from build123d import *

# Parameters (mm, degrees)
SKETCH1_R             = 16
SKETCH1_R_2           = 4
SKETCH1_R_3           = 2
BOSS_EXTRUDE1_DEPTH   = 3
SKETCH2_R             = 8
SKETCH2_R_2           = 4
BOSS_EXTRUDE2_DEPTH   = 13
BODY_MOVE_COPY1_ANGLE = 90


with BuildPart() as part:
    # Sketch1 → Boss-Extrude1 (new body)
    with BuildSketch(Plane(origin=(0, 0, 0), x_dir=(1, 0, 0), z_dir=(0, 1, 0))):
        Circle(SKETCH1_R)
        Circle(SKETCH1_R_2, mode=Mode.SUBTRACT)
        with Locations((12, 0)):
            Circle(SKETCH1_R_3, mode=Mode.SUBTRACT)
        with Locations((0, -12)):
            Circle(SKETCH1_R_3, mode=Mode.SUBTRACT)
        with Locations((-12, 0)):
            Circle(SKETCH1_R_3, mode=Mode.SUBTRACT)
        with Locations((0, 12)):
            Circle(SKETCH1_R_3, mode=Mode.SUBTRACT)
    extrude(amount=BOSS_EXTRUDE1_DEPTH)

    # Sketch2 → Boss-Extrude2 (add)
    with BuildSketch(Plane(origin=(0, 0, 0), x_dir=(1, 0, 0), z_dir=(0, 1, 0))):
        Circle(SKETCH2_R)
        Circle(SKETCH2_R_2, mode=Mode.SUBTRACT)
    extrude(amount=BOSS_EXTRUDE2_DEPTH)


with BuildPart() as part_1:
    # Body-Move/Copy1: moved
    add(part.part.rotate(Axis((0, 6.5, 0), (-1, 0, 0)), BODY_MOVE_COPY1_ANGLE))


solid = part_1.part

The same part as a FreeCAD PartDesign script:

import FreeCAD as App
import Part
import Sketcher
from FreeCAD import Vector

doc = App.newDocument("Part")
params = doc.addObject("Spreadsheet::Sheet", "Params")
for row, (alias, value) in enumerate([
    ("sketch1_diameter", "32 mm"),
    ("sketch1_diameter2", "4 mm"),
    ("sketch1_diameter3", "8 mm"),
    ("pad1_length", "3 mm"),
    ("sketch2_diameter", "16 mm"),
    ("sketch2_diameter2", "8 mm"),
    ("pad2_length", "13 mm"),
], start=1):
    params.set(f"A{row}", alias)
    params.set(f"B{row}", "=" + value)
    params.setAlias(f"B{row}", alias)

body = doc.addObject("PartDesign::Body", "Body")

sketch1 = body.newObject("Sketcher::SketchObject", "Sketch")
sketch1.AttachmentSupport = (doc.getObject("XZ_Plane"), [""])
sketch1.MapMode = "FlatFace"
sketch1.addGeometry([
    Part.Circle(Vector(0, 0, 0), Vector(0, 0, 1), 16),
    Part.Circle(Vector(0, 12, 0), Vector(0, 0, 1), 2),
    Part.Circle(Vector(-12, 0, 0), Vector(0, 0, 1), 2),
    Part.Circle(Vector(0, 0, 0), Vector(0, 0, 1), 4),
    Part.Circle(Vector(12, 0, 0), Vector(0, 0, 1), 2),
    Part.Circle(Vector(0, -12, 0), Vector(0, 0, 1), 2),
], False)
sketch1.addConstraint([
    Sketcher.Constraint("Coincident", 0, 3, -1, 1),
    Sketcher.Constraint("Coincident", 3, 3, -1, 1),
    Sketcher.Constraint("Equal", 1, 2),
    Sketcher.Constraint("Equal", 2, 4),
    Sketcher.Constraint("Equal", 4, 5),
    Sketcher.Constraint("Symmetric", 2, 3, 4, 3, -1, 1),
    Sketcher.Constraint("Symmetric", 1, 3, 5, 3, -1, 1),
    Sketcher.Constraint("PointOnObject", 1, 3, -2),
    Sketcher.Constraint("PointOnObject", 2, 3, -1),
    Sketcher.Constraint("Diameter", 0, 32.0),
    Sketcher.Constraint("Diameter", 1, 4.0),
    Sketcher.Constraint("Diameter", 3, 8.0),
    Sketcher.Constraint("DistanceY", -1, 1, 1, 3, 12.0),
    Sketcher.Constraint("DistanceX", 2, 3, -1, 1, 12.0),
])
sketch1.setExpression("Constraints[9]", "Params.sketch1_diameter")
sketch1.setExpression("Constraints[10]", "Params.sketch1_diameter2")
sketch1.setExpression("Constraints[11]", "Params.sketch1_diameter3")
pad1 = body.newObject("PartDesign::Pad", "Pad")
pad1.Profile = sketch1
pad1.setExpression("Length", "Params.pad1_length")
pad1.Reversed = True

sketch2 = body.newObject("Sketcher::SketchObject", "Sketch001")
sketch2.AttachmentSupport = (doc.getObject("XZ_Plane"), [""])
sketch2.MapMode = "FlatFace"
sketch2.addGeometry([
    Part.Circle(Vector(0, 0, 0), Vector(0, 0, 1), 8),
    Part.Circle(Vector(0, 0, 0), Vector(0, 0, 1), 4),
], False)
sketch2.addConstraint([
    Sketcher.Constraint("Coincident", 0, 3, -1, 1),
    Sketcher.Constraint("Coincident", 1, 3, -1, 1),
    Sketcher.Constraint("Diameter", 0, 16.0),
    Sketcher.Constraint("Diameter", 1, 8.0),
])
sketch2.setExpression("Constraints[2]", "Params.sketch2_diameter")
sketch2.setExpression("Constraints[3]", "Params.sketch2_diameter2")
pad2 = body.newObject("PartDesign::Pad", "Pad001")
pad2.Profile = sketch2
pad2.setExpression("Length", "Params.pad2_length")
pad2.Reversed = True
body2 = doc.addObject("PartDesign::Body", "Body001")
doc.recompute()

body.Placement = App.Placement(Vector(0, 6.5, 6.5), App.Rotation(Vector(-1, 0, 0), 90))
boolean = body2.newObject("PartDesign::Boolean", "Boolean")
boolean.Type = "Fuse"
boolean.addObjects([body])

doc.recompute()
